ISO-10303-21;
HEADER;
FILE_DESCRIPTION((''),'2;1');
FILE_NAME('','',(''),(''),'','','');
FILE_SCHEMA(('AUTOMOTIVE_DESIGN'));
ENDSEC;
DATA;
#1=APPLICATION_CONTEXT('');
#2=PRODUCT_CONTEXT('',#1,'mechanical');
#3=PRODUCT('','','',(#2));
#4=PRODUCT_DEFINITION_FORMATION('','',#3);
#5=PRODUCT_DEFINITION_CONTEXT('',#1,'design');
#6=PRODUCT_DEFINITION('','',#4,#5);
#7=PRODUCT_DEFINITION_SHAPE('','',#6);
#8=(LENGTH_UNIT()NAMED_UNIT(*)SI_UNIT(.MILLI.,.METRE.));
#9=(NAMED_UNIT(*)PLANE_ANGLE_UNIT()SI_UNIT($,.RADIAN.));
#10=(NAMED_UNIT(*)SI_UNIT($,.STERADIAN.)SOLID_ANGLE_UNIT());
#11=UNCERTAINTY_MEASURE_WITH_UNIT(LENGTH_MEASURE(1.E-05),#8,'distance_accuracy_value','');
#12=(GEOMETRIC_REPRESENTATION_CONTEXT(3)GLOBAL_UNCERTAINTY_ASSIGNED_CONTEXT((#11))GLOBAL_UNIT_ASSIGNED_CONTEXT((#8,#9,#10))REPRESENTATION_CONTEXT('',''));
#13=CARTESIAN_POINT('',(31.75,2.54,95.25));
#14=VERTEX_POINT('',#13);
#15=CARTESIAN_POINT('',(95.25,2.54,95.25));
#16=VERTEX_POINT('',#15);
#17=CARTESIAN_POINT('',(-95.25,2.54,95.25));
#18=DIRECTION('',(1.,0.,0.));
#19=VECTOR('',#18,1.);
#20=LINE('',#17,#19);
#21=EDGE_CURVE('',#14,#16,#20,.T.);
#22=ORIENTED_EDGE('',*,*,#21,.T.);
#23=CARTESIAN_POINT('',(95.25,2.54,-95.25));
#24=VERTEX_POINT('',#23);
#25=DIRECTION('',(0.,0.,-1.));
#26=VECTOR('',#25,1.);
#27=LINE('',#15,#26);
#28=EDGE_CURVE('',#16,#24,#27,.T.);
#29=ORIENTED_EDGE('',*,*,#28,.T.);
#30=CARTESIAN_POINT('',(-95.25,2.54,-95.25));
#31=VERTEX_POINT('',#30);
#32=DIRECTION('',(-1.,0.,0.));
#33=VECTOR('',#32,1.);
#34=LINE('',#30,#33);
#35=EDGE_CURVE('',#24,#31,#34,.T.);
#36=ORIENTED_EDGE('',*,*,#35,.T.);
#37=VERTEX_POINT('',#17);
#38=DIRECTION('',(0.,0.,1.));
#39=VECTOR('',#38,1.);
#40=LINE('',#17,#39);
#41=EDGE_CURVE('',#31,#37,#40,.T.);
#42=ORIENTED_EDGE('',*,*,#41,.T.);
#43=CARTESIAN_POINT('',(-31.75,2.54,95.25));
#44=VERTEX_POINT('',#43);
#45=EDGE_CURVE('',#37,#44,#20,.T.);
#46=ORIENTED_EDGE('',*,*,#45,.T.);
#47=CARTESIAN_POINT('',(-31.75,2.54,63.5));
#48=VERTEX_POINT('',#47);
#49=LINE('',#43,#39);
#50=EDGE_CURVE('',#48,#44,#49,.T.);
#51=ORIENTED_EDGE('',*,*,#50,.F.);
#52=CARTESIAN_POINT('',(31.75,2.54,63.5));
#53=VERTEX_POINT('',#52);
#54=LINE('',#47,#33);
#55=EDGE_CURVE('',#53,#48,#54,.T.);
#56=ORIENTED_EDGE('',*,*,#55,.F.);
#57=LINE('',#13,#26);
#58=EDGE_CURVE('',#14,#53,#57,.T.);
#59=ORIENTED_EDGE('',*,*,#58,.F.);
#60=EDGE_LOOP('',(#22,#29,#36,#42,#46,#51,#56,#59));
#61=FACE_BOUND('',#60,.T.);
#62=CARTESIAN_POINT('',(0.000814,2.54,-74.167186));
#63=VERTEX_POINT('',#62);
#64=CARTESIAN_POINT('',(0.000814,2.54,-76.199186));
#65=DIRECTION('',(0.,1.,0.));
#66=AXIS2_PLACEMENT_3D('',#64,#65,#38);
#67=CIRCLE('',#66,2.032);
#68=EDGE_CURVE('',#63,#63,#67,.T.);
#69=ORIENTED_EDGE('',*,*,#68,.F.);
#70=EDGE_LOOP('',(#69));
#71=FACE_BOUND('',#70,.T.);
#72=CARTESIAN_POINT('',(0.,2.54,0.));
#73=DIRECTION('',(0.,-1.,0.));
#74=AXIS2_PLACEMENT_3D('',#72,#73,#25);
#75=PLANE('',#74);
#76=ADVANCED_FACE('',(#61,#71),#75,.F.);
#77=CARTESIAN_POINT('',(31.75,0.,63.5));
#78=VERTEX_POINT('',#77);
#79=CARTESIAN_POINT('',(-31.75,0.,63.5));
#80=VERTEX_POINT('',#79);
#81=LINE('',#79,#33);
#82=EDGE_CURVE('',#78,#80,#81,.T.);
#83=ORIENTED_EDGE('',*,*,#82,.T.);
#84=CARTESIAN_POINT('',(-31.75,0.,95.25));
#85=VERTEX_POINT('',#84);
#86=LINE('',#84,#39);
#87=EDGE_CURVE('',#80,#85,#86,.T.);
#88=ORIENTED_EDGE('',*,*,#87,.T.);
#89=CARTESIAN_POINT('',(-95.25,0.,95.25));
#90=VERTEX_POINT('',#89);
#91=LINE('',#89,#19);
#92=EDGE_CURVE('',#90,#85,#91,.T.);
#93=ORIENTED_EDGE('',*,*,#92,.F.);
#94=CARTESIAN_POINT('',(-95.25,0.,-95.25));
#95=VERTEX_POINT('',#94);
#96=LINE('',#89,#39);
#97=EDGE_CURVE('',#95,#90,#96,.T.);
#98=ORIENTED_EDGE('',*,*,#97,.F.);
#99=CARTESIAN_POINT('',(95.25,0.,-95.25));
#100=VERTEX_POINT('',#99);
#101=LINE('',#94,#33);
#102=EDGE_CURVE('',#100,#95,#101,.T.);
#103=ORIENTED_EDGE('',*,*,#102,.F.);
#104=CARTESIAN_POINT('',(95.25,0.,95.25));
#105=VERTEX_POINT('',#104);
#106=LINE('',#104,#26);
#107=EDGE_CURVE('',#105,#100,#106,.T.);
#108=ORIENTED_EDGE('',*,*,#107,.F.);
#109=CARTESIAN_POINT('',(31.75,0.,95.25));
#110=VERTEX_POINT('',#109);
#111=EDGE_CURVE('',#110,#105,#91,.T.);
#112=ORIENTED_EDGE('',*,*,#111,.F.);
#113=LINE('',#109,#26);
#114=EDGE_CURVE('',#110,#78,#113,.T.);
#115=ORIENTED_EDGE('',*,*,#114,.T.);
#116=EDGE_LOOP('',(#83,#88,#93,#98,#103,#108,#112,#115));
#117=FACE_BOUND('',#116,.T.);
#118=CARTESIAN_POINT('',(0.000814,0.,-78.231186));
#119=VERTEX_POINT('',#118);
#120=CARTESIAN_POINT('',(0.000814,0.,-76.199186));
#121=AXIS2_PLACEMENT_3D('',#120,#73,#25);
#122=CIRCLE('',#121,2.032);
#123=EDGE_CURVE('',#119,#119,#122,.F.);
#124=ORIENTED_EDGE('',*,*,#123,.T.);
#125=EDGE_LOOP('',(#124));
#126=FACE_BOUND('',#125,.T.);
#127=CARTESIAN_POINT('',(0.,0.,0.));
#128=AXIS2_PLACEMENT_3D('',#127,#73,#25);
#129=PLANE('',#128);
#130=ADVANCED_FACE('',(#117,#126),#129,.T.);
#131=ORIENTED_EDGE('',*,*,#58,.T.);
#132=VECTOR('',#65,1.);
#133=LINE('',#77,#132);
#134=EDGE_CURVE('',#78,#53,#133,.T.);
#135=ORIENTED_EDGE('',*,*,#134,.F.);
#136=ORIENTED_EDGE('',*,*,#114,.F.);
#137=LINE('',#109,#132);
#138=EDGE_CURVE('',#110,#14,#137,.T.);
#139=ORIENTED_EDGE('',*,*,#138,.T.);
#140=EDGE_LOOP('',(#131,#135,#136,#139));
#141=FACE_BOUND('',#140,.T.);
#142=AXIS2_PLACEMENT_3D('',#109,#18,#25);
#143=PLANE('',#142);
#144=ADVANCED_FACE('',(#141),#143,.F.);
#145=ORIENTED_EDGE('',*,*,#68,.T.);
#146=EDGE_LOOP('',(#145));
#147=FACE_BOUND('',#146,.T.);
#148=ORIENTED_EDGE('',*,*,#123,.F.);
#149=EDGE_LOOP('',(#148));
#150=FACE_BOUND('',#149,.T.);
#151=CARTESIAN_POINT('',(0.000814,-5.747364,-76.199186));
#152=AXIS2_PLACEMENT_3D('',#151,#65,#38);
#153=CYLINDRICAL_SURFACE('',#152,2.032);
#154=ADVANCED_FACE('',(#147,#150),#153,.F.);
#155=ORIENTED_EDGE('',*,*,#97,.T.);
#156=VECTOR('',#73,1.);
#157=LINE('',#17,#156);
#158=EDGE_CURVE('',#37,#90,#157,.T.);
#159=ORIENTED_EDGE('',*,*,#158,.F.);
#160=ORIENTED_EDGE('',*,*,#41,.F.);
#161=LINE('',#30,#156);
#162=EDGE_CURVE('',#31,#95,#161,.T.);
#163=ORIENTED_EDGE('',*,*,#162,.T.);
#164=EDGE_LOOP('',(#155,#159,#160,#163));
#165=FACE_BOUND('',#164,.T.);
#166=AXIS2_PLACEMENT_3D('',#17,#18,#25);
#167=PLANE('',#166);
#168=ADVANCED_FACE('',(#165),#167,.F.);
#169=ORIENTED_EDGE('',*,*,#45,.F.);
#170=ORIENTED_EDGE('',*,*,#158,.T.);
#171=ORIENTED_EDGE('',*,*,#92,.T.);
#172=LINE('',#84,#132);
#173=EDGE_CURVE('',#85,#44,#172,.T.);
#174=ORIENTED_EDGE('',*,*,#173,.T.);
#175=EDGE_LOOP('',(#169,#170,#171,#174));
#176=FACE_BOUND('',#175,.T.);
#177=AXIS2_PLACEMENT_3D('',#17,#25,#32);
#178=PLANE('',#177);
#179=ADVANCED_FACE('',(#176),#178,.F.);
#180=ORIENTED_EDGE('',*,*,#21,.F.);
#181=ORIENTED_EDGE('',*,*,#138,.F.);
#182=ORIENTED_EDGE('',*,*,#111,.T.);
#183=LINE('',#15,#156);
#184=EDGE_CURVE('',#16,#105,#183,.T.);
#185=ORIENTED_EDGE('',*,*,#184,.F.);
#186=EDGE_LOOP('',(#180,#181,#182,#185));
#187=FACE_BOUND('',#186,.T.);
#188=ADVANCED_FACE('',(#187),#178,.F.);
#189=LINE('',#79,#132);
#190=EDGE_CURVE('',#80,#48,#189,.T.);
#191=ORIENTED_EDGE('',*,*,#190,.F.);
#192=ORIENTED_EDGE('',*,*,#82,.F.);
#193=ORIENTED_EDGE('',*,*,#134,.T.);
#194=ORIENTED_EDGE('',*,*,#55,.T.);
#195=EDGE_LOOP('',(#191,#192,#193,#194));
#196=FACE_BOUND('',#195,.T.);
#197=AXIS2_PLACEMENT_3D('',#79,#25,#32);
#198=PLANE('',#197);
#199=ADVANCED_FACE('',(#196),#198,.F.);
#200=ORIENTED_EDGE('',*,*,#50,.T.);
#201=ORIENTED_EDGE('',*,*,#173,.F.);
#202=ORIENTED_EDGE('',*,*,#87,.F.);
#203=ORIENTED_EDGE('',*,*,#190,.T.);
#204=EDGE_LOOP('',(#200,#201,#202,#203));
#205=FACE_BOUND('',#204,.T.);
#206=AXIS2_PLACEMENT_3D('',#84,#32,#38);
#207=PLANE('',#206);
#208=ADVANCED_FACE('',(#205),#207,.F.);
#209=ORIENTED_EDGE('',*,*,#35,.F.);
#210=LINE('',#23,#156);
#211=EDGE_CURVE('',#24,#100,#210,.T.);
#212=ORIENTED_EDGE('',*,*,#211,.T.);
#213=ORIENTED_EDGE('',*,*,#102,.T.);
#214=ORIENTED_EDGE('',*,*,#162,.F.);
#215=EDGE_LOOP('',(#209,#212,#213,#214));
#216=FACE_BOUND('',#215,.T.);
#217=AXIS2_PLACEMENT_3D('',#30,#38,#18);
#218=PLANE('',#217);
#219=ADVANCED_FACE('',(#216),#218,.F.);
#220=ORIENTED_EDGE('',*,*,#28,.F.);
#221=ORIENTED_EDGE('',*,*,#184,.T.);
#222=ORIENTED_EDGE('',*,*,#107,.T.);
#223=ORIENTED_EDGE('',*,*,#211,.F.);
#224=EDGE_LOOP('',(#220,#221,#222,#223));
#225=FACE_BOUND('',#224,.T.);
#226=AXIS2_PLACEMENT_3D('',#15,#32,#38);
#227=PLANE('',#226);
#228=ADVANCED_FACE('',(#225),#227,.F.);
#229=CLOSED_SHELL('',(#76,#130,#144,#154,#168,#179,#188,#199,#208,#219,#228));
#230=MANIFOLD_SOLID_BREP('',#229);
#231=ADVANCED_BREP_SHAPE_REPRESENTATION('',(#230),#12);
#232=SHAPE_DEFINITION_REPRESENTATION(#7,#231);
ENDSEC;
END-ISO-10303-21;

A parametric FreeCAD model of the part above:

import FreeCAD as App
import Part
import Sketcher
Q = App.Units.Quantity


def add_polygon(sketch, points):
    """Adds a closed chain of lines whose ends are joined by coincident constraints."""
    first, n = sketch.GeometryCount, len(points)
    for a, b in zip(points, points[1:] + points[:1]):
        sketch.addGeometry(Part.LineSegment(App.Vector(*a, 0), App.Vector(*b, 0)), False)
    for i in range(n):
        sketch.addConstraint(Sketcher.Constraint("Coincident", first + i, 2, first + (i + 1) % n, 1))

doc = App.newDocument("Part")
body = doc.addObject("PartDesign::Body", "Body")

# Sketch on XZ plane
sketch1 = body.newObject("Sketcher::SketchObject", "Sketch")
sketch1.AttachmentSupport = (doc.getObject("XZ_Plane"), [""])
sketch1.MapMode = "FlatFace"
add_polygon(sketch1, [(-95, -95), (-95, 95), (95, 95), (95, -95)])  # lines 0-3
sketch1.addConstraint([
    Sketcher.Constraint("Vertical", 0),
    Sketcher.Constraint("Horizontal", 1),
    Sketcher.Constraint("Vertical", 2),
    Sketcher.Constraint("Horizontal", 3),
    Sketcher.Constraint("Symmetric", 0, 2, 2, 2, -1, 1),
    Sketcher.Constraint("Equal", 3, 0),
    Sketcher.Constraint("DistanceX", 1, 1, 1, 2, Q("7.5 in")),
])
pad1 = body.newObject("PartDesign::Pad", "Pad")
pad1.Profile = sketch1
pad1.Length = Q("0.1 in")
pad1.Reversed = True

# Sketch on XZ plane
sketch2 = body.newObject("Sketcher::SketchObject", "Sketch001")
sketch2.AttachmentSupport = (doc.getObject("XZ_Plane"), [""])
sketch2.MapMode = "FlatFace"
sketch2.AttachmentOffset = App.Placement(App.Vector(0, 0, -0.1 * 25.4), App.Rotation())
add_polygon(sketch2, [(-32, 64), (-32, 95), (32, 95), (32, 64)])  # lines 0-3
sketch2.addConstraint([
    Sketcher.Constraint("Vertical", 0),
    Sketcher.Constraint("Horizontal", 1),
    Sketcher.Constraint("Vertical", 2),
    Sketcher.Constraint("Horizontal", 3),
    Sketcher.Constraint("DistanceX", 1, 1, 1, 2, Q("2.5 in")),
    Sketcher.Constraint("DistanceY", 0, 1, 0, 2, Q("1.25 in")),
    Sketcher.Constraint("DistanceY", -1, 1, 2, 2, Q("2.5 in")),
    Sketcher.Constraint("DistanceX", 0, 2, -1, 1, Q("1.25 in")),
])
pocket1 = body.newObject("PartDesign::Pocket", "Pocket")
pocket1.Profile = sketch2
pocket1.Length = Q("0.1 in")
pocket1.Reversed = True

# Sketch on XZ plane
sketch3 = body.newObject("Sketcher::SketchObject", "Sketch002")
sketch3.AttachmentSupport = (doc.getObject("XZ_Plane"), [""])
sketch3.MapMode = "FlatFace"
sketch3.AttachmentOffset = App.Placement(App.Vector(0, 0, -0.1 * 25.4), App.Rotation())
sketch3.addGeometry(Part.Circle(App.Vector(0, -76.2, 0), App.Vector(0, 0, 1), 2), False)
sketch3.addConstraint([
    Sketcher.Constraint("Diameter", 0, Q("0.16 in")),
    Sketcher.Constraint("DistanceX", -1, 1, 0, 3, Q("0.000814 mm")),
    Sketcher.Constraint("DistanceY", 0, 3, -1, 1, Q("76.199186 mm")),
])
pocket2 = body.newObject("PartDesign::Pocket", "Pocket001")
pocket2.Profile = sketch3
pocket2.Length = Q("0.1 in")
pocket2.Reversed = True

doc.recompute()
